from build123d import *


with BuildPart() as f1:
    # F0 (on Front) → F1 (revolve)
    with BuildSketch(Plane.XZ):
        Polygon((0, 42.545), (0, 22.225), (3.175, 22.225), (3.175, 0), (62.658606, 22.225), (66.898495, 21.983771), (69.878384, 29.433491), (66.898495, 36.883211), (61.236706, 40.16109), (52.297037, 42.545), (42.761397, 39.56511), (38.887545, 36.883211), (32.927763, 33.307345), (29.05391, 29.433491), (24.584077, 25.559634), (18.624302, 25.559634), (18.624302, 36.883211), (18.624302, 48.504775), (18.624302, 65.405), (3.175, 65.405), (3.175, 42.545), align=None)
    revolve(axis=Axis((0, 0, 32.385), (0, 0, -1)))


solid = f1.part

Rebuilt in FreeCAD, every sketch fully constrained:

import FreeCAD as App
import Part
import Sketcher
from FreeCAD import Vector
Q = App.Units.Quantity


def add_polygon(sketch, points):
    """Adds a closed chain of lines whose ends are joined by coincident constraints."""
    first, n = sketch.GeometryCount, len(points)
    for a, b in zip(points, points[1:] + points[:1]):
        sketch.addGeometry(Part.LineSegment(App.Vector(*a, 0), App.Vector(*b, 0)), False)
    for i in range(n):
        sketch.addConstraint(Sketcher.Constraint("Coincident", first + i, 2, first + (i + 1) % n, 1))

doc = App.newDocument("Part")
body = doc.addObject("PartDesign::Body", "Body")

# Sketch on XZ plane
sketch1 = body.newObject("Sketcher::SketchObject", "Sketch")
sketch1.AttachmentSupport = (doc.getObject("XZ_Plane"), [""])
sketch1.MapMode = "FlatFace"
add_polygon(sketch1, [(0, 42.5), (0, 22.2), (3.2, 22.2), (3.2, 0), (62.7, 22.2), (66.9, 22), (69.9, 29.4), (66.9, 36.9), (61.2, 40.2), (52.3, 42.5), (42.8, 39.6), (38.9, 36.9), (32.9, 33.3), (29.1, 29.4), (24.6, 25.6), (18.6, 25.6), (18.6, 65.4), (3.2, 65.4), (3.2, 42.5)])  # lines 0-18
sketch1.addConstraint([
    Sketcher.Constraint("Vertical", 0),
    Sketcher.Constraint("Horizontal", 1),
    Sketcher.Constraint("Vertical", 2),
    Sketcher.Constraint("Horizontal", 14),
    Sketcher.Constraint("Vertical", 15),
    Sketcher.Constraint("Horizontal", 16),
    Sketcher.Constraint("Vertical", 17),
    Sketcher.Constraint("Horizontal", 18),
    Sketcher.Constraint("PointOnObject", 0, 2, -2),
    Sketcher.Constraint("PointOnObject", 2, 2, -1),
    Sketcher.Constraint("Horizontal", 1, 2, 3, 2),
    Sketcher.Constraint("Horizontal", 6, 2, 10, 2),
    Sketcher.Constraint("Horizontal", 5, 2, 12, 2),
    Sketcher.Constraint("Horizontal", 8, 2, 17, 2),
    Sketcher.Constraint("Vertical", 4, 2, 6, 2),
    Sketcher.Constraint("Vertical", 2, 2, 16, 2),
    Sketcher.Constraint("Equal", 5, 6),
    Sketcher.Constraint("DistanceY", 0, 2, 0, 1, Q("0.8 in")),
    Sketcher.Constraint("DistanceY", 17, 2, 17, 1, Q("0.9 in")),
    Sketcher.Constraint("Angle", 12, Q("-134.999993 deg")),
    Sketcher.Constraint("Distance", 3, Q("2.5 in")),
    Sketcher.Constraint("DistanceX", 1, 1, 1, 2, Q("0.125 in")),
    Sketcher.Constraint("DistanceY", 2, 2, 2, 1, Q("0.875 in")),
    Sketcher.Constraint("DistanceX", -1, 1, 14, 2, 18.624302),
    Sketcher.Constraint("DistanceY", 5, 2, 7, 2, 10.727599),
    Sketcher.Constraint("DistanceX", 7, 2, 3, 2, 1.4219),
    Sketcher.Constraint("DistanceY", 6, 2, 9, 2, 2.681899),
    Sketcher.Constraint("Distance", 11, 6.950239),
    Sketcher.Constraint("Distance", 13, 5.914911),
    Sketcher.Constraint("DistanceX", 14, 2, 14, 1, 5.959775),
    Sketcher.Constraint("DistanceY", 15, 1, 15, 2, 39.845366),
    Sketcher.Constraint("DistanceY", -1, 1, 4, 2, 21.983771),
    Sketcher.Constraint("DistanceY", -1, 1, 5, 2, 29.433491),
    Sketcher.Constraint("DistanceX", 3, 2, 4, 2, 4.239889),
    Sketcher.Constraint("DistanceX", 4, 2, 5, 2, 2.979889),
    Sketcher.Constraint("DistanceX", 8, 2, 7, 2, 8.939669),
    Sketcher.Constraint("DistanceX", 9, 2, 8, 2, 9.53564),
    Sketcher.Constraint("DistanceX", 10, 2, 9, 2, 3.873852),
])
revolution = body.newObject("PartDesign::Revolution", "Revolution")
revolution.Profile = sketch1
revolution.ReferenceAxis = (sketch1, ["V_Axis"])
revolution.Angle = 360

doc.recompute()
